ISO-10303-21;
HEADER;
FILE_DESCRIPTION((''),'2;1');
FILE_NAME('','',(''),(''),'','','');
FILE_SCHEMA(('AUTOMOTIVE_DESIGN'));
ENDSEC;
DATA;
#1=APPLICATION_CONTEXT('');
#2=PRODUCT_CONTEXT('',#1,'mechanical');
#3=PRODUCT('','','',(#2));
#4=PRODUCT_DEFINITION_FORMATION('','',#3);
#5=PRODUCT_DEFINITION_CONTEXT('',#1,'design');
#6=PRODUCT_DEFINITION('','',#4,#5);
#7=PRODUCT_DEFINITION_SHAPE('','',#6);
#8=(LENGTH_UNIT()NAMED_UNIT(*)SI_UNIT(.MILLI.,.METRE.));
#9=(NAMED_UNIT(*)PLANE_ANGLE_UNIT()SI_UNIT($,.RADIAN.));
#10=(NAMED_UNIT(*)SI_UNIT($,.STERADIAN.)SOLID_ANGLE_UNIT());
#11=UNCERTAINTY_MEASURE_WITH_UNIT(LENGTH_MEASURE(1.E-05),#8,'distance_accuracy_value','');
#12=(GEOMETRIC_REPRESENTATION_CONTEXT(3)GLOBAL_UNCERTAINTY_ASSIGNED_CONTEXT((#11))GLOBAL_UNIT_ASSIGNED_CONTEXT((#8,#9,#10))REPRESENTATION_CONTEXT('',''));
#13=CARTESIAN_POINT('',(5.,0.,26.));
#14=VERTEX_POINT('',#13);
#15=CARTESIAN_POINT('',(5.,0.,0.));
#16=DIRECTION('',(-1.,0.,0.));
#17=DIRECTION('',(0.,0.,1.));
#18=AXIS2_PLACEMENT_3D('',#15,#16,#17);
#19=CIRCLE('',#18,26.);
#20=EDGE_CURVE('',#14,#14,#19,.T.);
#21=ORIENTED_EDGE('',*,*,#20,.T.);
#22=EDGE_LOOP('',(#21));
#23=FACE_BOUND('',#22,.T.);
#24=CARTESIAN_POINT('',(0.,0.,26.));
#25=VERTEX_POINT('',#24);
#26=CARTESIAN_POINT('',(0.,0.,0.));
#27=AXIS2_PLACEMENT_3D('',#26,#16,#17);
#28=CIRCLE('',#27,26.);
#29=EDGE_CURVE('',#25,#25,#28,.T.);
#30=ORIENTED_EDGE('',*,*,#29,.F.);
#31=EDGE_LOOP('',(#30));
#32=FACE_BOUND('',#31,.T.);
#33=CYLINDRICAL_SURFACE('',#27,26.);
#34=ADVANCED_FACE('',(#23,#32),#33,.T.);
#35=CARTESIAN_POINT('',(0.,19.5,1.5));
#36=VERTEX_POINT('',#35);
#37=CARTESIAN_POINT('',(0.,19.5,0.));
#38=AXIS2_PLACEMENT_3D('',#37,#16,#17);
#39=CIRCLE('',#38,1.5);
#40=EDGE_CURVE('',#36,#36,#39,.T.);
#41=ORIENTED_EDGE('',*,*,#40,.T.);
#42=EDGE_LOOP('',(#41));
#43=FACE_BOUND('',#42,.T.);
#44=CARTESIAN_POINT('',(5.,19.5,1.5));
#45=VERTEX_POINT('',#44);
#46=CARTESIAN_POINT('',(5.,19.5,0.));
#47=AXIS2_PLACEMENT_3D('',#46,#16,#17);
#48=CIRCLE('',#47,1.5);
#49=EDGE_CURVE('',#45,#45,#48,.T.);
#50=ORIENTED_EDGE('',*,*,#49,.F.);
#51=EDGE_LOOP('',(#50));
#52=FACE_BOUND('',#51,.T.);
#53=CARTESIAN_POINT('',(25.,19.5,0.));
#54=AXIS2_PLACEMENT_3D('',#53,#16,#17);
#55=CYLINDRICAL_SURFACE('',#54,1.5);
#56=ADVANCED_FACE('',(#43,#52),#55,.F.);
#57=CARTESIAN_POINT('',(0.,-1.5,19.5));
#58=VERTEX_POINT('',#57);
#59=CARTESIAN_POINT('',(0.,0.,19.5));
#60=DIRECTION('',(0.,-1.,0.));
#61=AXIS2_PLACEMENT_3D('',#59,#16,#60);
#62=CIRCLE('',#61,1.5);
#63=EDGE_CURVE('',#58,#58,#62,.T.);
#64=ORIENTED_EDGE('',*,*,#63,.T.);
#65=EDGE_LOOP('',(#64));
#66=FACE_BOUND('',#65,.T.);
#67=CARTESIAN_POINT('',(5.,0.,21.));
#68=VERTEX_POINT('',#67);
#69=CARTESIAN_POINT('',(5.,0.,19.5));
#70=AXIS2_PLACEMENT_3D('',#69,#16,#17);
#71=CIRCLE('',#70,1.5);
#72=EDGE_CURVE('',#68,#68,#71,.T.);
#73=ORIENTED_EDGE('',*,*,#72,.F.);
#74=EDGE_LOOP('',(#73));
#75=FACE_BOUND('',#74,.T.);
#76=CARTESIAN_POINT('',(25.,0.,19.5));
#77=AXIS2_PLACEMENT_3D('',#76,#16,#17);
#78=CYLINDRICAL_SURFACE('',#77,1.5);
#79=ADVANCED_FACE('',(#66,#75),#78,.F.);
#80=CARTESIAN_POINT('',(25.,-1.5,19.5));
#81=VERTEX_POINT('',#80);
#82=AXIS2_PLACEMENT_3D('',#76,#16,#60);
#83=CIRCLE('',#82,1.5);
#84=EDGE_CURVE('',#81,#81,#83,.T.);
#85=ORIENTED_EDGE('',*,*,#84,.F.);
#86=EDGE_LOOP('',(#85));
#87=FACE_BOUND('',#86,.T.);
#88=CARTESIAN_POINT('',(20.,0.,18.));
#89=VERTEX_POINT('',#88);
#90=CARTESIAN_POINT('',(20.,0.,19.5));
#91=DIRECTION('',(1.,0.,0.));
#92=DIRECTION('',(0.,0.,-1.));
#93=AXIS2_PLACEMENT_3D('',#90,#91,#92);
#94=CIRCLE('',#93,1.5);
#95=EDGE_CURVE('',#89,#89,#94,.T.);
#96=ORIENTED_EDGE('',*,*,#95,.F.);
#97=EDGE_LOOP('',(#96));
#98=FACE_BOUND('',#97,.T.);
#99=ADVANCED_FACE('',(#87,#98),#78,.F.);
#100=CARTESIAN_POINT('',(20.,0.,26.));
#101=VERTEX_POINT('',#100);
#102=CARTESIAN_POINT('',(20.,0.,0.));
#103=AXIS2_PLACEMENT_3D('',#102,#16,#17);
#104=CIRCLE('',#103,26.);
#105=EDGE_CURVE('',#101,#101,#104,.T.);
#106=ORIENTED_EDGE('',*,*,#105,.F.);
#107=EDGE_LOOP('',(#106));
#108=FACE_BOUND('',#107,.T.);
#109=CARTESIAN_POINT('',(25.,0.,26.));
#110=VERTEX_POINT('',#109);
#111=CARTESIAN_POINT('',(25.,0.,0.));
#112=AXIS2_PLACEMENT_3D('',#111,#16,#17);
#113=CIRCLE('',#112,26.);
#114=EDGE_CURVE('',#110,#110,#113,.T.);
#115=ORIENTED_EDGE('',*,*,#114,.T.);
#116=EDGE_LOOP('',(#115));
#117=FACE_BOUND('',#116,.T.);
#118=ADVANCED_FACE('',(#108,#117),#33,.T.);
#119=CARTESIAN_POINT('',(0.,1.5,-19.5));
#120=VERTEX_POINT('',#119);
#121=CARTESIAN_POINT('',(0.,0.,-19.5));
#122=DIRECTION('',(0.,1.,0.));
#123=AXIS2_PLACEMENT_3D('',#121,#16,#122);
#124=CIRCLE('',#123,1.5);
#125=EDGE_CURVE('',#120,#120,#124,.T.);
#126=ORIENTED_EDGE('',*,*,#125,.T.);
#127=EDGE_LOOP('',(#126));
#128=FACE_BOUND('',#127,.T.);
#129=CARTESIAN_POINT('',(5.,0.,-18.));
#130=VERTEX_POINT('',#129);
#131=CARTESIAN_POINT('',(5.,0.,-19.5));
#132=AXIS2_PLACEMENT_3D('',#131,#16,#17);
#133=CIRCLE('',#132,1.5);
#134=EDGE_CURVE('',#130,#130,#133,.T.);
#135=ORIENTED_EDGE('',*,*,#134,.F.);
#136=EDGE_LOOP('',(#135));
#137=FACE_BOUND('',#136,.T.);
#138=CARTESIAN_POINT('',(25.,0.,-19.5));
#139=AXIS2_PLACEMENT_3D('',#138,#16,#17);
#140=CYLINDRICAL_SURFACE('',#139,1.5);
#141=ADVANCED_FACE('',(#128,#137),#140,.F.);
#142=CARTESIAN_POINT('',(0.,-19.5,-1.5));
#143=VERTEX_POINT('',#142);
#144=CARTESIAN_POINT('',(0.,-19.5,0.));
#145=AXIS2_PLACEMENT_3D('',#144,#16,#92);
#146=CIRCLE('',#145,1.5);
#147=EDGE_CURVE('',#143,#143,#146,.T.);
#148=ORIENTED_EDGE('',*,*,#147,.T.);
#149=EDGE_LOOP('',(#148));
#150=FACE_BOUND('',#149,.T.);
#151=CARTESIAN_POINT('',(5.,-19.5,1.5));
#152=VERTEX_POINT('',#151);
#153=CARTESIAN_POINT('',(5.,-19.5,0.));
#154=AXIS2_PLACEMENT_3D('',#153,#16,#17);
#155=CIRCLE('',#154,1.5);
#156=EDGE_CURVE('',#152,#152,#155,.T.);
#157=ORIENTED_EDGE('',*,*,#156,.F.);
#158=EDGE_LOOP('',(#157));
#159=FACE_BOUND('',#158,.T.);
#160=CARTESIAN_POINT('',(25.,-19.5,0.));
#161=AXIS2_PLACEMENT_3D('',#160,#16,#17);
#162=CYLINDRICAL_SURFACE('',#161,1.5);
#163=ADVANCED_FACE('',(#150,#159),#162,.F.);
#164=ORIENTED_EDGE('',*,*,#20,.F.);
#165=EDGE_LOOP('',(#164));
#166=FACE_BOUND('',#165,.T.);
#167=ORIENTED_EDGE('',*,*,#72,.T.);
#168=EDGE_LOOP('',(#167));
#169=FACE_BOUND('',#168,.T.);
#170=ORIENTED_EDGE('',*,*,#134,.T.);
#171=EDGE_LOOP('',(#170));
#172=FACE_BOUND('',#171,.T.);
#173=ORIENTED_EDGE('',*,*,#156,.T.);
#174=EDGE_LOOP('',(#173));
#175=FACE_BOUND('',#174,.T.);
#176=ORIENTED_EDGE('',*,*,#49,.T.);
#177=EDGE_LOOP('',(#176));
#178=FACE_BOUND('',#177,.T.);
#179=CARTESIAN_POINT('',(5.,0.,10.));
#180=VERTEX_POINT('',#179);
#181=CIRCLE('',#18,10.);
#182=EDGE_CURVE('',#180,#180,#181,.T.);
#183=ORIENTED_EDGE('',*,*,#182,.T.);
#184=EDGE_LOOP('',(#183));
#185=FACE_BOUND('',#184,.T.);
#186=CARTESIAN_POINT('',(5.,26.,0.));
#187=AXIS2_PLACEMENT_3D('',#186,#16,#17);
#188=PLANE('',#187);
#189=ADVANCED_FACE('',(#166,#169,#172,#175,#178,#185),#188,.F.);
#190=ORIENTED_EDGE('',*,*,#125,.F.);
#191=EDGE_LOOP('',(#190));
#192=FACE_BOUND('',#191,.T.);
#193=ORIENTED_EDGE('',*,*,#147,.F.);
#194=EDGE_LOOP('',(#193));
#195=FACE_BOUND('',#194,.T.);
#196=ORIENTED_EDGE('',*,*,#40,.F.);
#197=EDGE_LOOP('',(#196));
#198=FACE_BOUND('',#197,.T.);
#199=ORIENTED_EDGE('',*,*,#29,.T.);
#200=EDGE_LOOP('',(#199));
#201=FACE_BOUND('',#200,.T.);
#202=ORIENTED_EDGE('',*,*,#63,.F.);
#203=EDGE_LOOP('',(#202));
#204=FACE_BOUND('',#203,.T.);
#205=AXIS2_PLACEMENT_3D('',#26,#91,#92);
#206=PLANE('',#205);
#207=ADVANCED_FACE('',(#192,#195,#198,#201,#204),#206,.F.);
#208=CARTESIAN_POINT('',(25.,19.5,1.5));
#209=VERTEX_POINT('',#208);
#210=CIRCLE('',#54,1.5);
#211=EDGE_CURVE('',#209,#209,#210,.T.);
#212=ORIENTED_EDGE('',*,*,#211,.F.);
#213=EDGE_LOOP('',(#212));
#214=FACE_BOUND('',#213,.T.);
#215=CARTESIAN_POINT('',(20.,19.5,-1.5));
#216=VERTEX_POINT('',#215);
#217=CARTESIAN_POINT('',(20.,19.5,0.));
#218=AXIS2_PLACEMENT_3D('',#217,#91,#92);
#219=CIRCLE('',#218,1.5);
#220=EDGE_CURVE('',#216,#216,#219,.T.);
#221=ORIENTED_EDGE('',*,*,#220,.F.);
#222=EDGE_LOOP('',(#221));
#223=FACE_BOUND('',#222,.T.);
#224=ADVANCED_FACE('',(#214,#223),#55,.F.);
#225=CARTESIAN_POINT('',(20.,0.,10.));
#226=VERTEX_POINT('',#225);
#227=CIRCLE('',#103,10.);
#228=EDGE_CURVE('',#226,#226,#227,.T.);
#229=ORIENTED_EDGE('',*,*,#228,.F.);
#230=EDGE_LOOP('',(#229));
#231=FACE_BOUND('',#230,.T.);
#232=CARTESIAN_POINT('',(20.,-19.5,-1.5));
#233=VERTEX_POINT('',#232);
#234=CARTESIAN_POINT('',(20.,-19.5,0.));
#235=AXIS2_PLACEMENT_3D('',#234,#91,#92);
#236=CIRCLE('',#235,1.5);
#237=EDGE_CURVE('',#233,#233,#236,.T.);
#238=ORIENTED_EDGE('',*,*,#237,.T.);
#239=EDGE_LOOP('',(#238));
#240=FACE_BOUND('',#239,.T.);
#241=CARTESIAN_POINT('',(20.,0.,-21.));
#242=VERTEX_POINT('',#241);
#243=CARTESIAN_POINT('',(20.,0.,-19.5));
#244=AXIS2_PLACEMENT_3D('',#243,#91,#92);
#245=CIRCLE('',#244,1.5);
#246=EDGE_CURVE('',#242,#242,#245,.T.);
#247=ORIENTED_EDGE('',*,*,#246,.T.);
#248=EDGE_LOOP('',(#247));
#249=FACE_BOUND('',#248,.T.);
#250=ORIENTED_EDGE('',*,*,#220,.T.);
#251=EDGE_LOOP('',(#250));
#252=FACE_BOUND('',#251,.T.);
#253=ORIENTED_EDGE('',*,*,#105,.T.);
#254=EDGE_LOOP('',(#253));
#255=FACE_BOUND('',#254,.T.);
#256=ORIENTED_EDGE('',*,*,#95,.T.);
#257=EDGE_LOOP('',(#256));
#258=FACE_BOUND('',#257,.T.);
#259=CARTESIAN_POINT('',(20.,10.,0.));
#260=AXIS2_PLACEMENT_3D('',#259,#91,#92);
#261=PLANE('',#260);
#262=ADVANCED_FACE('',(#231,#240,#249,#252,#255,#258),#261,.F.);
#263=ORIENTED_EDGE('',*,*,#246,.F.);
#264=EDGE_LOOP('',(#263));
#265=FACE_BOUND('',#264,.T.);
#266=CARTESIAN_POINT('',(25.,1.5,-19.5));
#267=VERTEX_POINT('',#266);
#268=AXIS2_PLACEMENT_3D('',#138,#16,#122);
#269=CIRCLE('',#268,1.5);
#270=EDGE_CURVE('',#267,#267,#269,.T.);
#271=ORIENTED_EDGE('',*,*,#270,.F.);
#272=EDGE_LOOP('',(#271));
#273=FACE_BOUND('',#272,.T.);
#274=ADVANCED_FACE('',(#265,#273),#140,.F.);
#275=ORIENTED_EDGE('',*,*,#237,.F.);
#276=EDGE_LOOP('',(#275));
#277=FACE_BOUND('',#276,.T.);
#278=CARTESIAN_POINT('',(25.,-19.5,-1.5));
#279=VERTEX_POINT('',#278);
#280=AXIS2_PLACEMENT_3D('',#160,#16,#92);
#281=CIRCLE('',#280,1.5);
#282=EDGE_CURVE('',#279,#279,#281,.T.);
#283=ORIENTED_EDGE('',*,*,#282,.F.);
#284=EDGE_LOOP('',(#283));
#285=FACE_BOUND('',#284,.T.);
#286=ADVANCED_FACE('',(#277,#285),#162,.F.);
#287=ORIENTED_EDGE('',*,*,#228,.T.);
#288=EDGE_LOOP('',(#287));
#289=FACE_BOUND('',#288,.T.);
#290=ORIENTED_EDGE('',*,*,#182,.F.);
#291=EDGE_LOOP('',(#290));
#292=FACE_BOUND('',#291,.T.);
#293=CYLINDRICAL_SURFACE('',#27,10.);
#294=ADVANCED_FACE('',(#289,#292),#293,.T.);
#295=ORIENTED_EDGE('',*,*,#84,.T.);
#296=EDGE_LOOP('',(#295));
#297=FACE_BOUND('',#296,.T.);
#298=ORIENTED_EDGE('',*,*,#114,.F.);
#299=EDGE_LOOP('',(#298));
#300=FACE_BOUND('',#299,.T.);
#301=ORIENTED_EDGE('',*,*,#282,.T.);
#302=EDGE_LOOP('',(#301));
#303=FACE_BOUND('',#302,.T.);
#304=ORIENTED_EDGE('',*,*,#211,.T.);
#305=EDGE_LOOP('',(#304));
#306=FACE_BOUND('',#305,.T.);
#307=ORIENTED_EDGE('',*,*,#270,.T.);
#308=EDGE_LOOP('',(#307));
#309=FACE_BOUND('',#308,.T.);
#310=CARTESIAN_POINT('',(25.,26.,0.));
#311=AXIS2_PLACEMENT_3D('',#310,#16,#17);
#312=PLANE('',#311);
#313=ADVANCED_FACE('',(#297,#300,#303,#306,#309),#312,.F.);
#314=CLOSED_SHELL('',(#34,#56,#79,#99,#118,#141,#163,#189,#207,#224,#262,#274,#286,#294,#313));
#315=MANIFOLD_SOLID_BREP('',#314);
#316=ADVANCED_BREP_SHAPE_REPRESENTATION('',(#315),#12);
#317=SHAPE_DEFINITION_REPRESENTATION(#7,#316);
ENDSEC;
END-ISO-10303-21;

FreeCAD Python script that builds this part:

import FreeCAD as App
import Part
import Sketcher

doc = App.newDocument("Part")
body = doc.addObject("PartDesign::Body", "Body")

# Sketch on XY plane
sketch1 = body.newObject("Sketcher::SketchObject", "Sketch")
sketch1.AttachmentSupport = (doc.getObject("XY_Plane"), [""])
sketch1.MapMode = "FlatFace"
sketch1.addGeometry(Part.LineSegment(App.Vector(0, 26, 0), App.Vector(0, 0, 0)), False)
sketch1.addGeometry(Part.LineSegment(App.Vector(0, 0, 0), App.Vector(25, 0, 0)), False)
sketch1.addGeometry(Part.LineSegment(App.Vector(25, 0, 0), App.Vector(25, 26, 0)), False)
sketch1.addGeometry(Part.LineSegment(App.Vector(25, 26, 0), App.Vector(20, 26, 0)), False)
sketch1.addGeometry(Part.LineSegment(App.Vector(20, 26, 0), App.Vector(20, 10, 0)), False)
sketch1.addGeometry(Part.LineSegment(App.Vector(20, 10, 0), App.Vector(5, 10, 0)), False)
sketch1.addGeometry(Part.LineSegment(App.Vector(5, 10, 0), App.Vector(5, 26, 0)), False)
sketch1.addGeometry(Part.LineSegment(App.Vector(5, 26, 0), App.Vector(0, 26, 0)), False)
sketch1.addConstraint(Sketcher.Constraint("Coincident", 0, 2, 1, 1))
sketch1.addConstraint(Sketcher.Constraint("Coincident", 1, 2, 2, 1))
sketch1.addConstraint(Sketcher.Constraint("Coincident", 2, 2, 3, 1))
sketch1.addConstraint(Sketcher.Constraint("Coincident", 3, 2, 4, 1))
sketch1.addConstraint(Sketcher.Constraint("Coincident", 4, 2, 5, 1))
sketch1.addConstraint(Sketcher.Constraint("Coincident", 5, 2, 6, 1))
sketch1.addConstraint(Sketcher.Constraint("Coincident", 6, 2, 7, 1))
sketch1.addConstraint(Sketcher.Constraint("Coincident", 7, 2, 0, 1))
sketch1.addConstraint(Sketcher.Constraint("Vertical", 0))
sketch1.addConstraint(Sketcher.Constraint("Horizontal", 1))
sketch1.addConstraint(Sketcher.Constraint("Vertical", 2))
sketch1.addConstraint(Sketcher.Constraint("Horizontal", 3))
sketch1.addConstraint(Sketcher.Constraint("Vertical", 4))
sketch1.addConstraint(Sketcher.Constraint("Horizontal", 5))
sketch1.addConstraint(Sketcher.Constraint("Vertical", 6))
sketch1.addConstraint(Sketcher.Constraint("Horizontal", 7))
sketch1.addConstraint(Sketcher.Constraint("Coincident", 0, 2, -1, 1))
sketch1.addConstraint(Sketcher.Constraint("Horizontal", 3, 2, 6, 2))
sketch1.addConstraint(Sketcher.Constraint("Equal", 3, 7))
sketch1.addConstraint(Sketcher.Constraint("DistanceX", 1, 1, 1, 2, 25.0))
sketch1.addConstraint(Sketcher.Constraint("DistanceX", 3, 2, 3, 1, 5.0))
sketch1.addConstraint(Sketcher.Constraint("DistanceY", 0, 2, 0, 1, 26.0))
sketch1.addConstraint(Sketcher.Constraint("DistanceY", 4, 2, 4, 1, 16.0))
revolution = body.newObject("PartDesign::Revolution", "Revolution")
revolution.Profile = sketch1
revolution.ReferenceAxis = (sketch1, ["H_Axis"])
revolution.Angle = 360

# Sketch on YZ plane
sketch2 = body.newObject("Sketcher::SketchObject", "Sketch001")
sketch2.AttachmentSupport = (doc.getObject("YZ_Plane"), [""])
sketch2.MapMode = "FlatFace"
sketch2.addGeometry(Part.Circle(App.Vector(19.5, 0, 0), App.Vector(0, 0, 1), 1.5), False)
sketch2.addConstraint(Sketcher.Constraint("PointOnObject", 0, 3, -1))
sketch2.addConstraint(Sketcher.Constraint("Diameter", 0, 3.0))
sketch2.addConstraint(Sketcher.Constraint("DistanceX", -1, 1, 0, 3, 19.5))
pocket1 = body.newObject("PartDesign::Pocket", "Pocket")
pocket1.Profile = sketch2
pocket1.Type = "ThroughAll"
pocket1.Reversed = True
doc.recompute()

polarpattern = body.newObject("PartDesign::PolarPattern", "PolarPattern")
polarpattern.Originals = [pocket1]
polarpattern.Axis = (doc.getObject("X_Axis"), [""])
polarpattern.Angle = 360
polarpattern.Occurrences = 4
body.Tip = polarpattern

doc.recompute()
